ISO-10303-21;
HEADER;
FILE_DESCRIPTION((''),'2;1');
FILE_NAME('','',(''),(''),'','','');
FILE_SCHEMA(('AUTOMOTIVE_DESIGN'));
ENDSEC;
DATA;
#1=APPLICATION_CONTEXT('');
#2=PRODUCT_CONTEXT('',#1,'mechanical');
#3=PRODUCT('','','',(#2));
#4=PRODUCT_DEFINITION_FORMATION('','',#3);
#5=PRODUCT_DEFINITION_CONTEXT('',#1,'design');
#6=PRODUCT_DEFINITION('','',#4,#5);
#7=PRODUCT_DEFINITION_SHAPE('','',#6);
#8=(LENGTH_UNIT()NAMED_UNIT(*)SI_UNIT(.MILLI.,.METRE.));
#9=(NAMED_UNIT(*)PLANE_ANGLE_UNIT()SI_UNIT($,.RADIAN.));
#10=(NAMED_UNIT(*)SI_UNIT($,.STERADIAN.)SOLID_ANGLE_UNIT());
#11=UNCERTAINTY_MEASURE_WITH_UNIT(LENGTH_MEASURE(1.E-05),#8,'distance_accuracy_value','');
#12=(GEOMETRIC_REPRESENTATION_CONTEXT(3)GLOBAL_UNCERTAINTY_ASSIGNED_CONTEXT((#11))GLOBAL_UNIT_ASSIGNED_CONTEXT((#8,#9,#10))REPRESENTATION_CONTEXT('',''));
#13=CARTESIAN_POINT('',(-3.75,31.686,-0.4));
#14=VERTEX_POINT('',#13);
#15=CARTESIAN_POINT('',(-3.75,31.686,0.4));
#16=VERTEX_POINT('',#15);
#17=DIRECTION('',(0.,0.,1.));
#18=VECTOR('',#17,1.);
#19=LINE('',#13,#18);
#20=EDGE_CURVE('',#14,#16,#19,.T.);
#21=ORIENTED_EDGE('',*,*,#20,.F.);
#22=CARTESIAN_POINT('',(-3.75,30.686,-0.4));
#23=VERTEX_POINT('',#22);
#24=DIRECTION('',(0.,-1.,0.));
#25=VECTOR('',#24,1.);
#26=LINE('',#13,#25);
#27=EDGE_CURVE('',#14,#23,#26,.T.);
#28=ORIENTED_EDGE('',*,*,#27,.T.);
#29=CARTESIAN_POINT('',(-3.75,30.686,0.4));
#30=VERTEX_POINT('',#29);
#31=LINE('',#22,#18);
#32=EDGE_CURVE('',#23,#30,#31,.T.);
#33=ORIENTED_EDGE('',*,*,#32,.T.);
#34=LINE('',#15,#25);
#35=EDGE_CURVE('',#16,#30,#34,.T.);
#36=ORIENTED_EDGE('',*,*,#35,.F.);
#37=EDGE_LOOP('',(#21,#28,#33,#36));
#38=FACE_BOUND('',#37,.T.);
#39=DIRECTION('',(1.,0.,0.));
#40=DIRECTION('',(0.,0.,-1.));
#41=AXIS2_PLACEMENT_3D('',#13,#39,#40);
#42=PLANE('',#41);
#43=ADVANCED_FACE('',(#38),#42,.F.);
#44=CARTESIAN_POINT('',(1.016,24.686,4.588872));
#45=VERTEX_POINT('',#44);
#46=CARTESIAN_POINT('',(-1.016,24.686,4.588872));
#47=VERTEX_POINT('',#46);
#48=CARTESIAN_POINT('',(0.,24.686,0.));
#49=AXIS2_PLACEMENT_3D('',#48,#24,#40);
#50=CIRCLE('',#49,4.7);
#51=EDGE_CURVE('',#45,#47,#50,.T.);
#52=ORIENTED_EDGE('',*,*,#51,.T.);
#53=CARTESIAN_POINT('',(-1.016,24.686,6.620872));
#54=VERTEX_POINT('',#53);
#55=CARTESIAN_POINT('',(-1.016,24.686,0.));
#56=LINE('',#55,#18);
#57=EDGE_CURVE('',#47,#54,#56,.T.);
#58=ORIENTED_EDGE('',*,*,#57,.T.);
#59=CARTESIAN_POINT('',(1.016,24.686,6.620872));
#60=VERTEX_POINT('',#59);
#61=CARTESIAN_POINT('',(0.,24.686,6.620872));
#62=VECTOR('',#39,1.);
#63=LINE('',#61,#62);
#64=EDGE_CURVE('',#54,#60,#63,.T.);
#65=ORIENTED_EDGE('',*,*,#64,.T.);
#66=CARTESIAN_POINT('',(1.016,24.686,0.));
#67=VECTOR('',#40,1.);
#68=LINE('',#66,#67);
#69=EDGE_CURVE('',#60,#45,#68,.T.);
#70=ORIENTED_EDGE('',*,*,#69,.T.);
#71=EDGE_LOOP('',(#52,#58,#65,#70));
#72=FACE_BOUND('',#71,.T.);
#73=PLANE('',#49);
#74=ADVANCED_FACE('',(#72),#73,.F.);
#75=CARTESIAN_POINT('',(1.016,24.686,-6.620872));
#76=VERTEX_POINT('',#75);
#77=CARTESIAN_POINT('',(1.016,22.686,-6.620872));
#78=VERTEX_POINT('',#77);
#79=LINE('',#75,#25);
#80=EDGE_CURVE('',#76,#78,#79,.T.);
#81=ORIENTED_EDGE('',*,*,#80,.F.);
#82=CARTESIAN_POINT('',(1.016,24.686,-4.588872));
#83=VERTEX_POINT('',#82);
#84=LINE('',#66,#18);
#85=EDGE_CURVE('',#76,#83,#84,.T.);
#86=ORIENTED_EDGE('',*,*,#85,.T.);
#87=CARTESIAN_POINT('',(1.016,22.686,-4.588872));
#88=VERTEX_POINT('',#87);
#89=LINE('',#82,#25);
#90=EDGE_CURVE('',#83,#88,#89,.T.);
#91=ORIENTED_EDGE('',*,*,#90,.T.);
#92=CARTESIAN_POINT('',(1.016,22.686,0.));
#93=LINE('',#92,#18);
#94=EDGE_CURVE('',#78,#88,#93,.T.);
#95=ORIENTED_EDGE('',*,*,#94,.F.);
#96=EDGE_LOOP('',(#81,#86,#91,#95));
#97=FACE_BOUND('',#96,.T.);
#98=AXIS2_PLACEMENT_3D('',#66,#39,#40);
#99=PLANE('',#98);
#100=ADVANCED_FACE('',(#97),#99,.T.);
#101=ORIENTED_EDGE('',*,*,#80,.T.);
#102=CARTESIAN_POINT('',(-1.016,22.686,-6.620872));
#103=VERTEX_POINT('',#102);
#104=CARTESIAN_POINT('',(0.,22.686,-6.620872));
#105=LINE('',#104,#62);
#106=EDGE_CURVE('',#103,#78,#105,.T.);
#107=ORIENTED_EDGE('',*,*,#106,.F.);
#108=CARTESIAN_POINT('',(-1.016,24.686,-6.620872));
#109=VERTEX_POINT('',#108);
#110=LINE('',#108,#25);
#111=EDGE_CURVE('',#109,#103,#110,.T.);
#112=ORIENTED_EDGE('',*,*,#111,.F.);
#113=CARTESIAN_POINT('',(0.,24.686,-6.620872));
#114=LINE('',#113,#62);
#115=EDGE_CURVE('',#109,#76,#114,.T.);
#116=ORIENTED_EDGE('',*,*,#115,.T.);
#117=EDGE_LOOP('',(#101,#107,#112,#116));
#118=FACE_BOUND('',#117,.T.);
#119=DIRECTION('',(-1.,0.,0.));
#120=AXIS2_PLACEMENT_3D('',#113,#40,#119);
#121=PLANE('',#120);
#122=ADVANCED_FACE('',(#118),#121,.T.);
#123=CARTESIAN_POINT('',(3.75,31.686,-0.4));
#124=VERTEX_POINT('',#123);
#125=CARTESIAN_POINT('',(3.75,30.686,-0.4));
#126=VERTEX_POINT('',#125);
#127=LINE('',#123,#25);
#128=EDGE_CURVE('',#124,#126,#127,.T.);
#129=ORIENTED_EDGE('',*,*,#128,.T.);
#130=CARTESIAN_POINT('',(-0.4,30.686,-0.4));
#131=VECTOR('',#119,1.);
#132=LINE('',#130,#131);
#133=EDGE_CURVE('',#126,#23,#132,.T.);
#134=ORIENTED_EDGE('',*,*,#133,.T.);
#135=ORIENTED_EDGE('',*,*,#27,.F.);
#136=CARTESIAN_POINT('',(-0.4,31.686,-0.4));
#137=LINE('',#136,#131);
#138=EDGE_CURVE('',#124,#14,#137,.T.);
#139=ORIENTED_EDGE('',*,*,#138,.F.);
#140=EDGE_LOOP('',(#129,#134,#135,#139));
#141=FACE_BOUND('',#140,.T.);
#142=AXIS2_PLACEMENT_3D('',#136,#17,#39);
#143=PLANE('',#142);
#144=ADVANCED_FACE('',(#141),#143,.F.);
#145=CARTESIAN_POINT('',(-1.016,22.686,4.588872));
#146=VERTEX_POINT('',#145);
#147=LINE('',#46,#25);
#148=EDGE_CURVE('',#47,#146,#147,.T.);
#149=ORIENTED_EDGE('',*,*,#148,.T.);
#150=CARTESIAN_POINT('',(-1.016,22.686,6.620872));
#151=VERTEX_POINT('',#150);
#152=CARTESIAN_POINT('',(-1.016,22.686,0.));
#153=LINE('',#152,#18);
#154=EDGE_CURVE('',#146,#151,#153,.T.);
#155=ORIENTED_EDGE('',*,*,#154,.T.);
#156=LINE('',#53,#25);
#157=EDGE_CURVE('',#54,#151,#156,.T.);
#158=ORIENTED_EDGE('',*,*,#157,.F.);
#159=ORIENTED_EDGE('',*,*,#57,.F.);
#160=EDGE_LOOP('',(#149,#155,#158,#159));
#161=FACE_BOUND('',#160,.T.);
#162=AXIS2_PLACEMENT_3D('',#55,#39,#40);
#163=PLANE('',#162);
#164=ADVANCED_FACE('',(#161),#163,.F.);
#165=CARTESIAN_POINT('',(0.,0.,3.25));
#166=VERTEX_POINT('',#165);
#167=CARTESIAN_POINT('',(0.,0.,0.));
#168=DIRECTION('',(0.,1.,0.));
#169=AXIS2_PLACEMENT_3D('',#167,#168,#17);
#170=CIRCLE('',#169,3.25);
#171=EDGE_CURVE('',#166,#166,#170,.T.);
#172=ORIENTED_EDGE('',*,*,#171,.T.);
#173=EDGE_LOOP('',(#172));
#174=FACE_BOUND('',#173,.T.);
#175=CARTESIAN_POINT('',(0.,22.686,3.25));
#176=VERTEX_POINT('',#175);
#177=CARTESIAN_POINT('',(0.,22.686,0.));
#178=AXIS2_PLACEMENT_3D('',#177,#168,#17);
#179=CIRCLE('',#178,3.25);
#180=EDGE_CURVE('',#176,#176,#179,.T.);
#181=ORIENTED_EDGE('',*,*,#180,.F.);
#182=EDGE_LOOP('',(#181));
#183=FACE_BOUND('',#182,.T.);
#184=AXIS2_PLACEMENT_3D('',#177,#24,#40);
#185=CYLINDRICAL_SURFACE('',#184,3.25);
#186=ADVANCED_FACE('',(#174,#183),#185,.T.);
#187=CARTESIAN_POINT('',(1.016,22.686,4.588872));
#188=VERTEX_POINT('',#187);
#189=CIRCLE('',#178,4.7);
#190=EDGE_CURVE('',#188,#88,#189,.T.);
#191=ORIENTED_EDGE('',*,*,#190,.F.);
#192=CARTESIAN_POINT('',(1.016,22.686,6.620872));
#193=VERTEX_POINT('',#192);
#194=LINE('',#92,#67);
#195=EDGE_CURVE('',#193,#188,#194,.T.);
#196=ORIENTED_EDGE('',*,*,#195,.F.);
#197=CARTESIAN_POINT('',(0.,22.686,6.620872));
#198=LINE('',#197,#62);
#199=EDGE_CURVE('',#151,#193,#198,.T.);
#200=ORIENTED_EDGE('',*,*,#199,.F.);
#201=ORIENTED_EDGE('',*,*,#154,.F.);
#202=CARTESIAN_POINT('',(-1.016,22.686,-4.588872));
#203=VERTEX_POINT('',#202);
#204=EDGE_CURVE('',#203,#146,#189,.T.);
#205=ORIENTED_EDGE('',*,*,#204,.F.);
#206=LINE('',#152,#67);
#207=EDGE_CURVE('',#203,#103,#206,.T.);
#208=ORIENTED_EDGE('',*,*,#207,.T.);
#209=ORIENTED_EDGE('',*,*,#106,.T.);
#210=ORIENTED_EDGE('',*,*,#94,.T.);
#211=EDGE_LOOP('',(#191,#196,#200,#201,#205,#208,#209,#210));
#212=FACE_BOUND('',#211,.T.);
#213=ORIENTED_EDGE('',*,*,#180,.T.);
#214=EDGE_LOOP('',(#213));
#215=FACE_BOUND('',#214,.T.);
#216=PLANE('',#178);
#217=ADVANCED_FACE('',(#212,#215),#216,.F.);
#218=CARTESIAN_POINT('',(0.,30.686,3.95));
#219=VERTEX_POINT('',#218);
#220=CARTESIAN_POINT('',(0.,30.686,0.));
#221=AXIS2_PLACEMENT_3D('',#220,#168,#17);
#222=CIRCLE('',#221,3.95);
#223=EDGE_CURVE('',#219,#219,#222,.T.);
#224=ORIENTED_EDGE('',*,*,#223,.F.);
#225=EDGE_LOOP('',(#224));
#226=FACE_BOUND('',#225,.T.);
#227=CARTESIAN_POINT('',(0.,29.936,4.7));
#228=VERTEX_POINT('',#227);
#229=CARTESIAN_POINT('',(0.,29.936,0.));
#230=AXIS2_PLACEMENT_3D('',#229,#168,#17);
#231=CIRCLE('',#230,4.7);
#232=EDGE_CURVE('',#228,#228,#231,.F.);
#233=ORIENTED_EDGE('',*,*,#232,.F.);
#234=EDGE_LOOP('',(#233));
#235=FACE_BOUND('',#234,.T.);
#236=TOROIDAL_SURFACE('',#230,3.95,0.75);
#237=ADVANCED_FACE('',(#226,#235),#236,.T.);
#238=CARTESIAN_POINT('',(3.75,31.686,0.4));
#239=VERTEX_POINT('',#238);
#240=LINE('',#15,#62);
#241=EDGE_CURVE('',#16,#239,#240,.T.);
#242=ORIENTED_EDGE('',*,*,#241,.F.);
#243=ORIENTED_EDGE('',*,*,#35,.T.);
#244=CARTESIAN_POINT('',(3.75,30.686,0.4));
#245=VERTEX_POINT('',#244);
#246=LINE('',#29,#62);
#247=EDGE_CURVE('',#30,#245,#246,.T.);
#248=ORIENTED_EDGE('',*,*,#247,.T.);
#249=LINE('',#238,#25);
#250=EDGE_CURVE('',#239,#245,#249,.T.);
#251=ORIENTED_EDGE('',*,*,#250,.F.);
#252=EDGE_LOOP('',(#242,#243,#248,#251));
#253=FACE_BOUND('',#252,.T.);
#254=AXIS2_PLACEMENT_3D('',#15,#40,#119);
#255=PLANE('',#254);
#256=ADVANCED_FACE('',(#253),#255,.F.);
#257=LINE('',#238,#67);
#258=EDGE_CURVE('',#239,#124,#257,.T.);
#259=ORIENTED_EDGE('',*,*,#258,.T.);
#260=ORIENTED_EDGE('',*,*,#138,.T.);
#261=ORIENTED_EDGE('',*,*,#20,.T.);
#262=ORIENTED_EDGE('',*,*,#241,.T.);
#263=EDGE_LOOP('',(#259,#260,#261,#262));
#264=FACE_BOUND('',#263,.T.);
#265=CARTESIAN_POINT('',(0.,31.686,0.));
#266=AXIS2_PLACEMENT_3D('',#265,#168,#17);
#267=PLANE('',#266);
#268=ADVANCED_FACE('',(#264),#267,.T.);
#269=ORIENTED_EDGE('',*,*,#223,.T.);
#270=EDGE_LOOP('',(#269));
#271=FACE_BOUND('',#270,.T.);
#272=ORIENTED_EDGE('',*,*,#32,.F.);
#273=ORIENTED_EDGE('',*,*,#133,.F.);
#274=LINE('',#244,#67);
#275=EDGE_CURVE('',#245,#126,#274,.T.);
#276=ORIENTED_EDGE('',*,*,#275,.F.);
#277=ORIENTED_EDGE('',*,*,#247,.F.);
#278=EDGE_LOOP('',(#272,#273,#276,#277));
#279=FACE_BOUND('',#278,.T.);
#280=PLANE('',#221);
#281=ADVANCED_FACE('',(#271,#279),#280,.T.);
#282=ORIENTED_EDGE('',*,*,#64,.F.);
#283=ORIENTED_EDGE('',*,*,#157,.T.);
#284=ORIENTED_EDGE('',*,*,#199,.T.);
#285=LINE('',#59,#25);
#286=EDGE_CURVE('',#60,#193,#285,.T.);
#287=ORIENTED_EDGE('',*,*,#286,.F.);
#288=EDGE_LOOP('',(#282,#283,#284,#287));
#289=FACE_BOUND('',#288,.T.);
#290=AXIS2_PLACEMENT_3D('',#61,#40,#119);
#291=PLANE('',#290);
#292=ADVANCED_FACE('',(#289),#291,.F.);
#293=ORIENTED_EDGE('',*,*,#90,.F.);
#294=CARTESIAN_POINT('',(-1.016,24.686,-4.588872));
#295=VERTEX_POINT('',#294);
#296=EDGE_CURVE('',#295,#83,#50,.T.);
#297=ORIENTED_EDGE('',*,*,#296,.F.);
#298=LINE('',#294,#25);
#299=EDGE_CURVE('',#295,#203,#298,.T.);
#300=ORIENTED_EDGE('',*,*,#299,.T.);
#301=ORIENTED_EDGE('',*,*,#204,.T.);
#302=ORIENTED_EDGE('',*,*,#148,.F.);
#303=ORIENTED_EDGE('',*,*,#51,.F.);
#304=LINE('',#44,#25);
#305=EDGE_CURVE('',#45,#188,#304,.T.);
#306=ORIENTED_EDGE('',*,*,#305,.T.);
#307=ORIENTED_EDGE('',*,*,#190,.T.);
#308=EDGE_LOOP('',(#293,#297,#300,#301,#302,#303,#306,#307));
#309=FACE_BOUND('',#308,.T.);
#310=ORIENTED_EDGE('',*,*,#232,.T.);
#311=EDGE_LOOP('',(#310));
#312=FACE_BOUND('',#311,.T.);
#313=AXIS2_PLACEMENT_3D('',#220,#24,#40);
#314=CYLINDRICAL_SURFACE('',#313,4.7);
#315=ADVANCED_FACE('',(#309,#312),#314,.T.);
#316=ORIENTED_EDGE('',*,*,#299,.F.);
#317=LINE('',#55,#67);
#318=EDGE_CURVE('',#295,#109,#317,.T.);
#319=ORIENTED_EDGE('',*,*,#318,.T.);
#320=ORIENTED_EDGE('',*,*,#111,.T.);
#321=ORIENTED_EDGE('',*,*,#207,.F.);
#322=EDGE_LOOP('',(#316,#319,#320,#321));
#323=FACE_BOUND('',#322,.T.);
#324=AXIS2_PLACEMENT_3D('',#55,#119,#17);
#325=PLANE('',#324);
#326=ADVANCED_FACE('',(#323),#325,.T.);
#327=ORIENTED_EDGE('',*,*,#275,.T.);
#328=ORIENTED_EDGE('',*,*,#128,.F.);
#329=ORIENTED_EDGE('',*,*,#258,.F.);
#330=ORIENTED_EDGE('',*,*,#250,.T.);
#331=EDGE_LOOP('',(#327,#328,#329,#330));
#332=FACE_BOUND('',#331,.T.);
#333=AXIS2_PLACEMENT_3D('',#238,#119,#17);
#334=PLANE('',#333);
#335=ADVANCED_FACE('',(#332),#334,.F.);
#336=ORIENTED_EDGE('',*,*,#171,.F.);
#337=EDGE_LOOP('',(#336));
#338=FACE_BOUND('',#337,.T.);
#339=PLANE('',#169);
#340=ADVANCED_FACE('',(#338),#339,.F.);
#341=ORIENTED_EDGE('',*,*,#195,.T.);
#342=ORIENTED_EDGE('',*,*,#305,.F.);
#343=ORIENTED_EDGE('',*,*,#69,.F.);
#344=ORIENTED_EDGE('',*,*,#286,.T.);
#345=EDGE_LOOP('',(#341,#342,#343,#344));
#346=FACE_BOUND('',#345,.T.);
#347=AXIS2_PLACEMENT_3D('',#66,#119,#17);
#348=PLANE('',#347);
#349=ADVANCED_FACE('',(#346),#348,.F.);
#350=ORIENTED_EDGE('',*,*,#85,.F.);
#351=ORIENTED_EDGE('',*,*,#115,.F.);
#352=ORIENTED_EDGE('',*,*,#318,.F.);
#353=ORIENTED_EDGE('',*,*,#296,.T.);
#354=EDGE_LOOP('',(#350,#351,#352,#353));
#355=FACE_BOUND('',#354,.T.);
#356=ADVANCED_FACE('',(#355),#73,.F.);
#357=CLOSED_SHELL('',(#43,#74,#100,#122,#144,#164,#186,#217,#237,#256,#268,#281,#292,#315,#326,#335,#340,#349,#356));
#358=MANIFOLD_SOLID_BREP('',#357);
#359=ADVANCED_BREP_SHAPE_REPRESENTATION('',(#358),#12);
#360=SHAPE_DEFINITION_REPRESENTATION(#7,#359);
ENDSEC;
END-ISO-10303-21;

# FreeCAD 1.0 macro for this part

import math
import FreeCAD as App
import Part
import Sketcher
from FreeCAD import Vector


def edges_at(feature, points):
    """Names of the edges that pass closest to the given points."""
    edges = feature.Shape.Edges
    near = lambda p: min(range(len(edges)), key=lambda i: edges[i].distToShape(Part.Vertex(*p))[0])
    return sorted({f"Edge{near(p) + 1}" for p in points})


def add_polygon(sketch, points):
    """Adds a closed chain of lines whose ends are joined by coincident constraints."""
    first, n = sketch.GeometryCount, len(points)
    for a, b in zip(points, points[1:] + points[:1]):
        sketch.addGeometry(Part.LineSegment(App.Vector(*a, 0), App.Vector(*b, 0)), False)
    for i in range(n):
        sketch.addConstraint(Sketcher.Constraint("Coincident", first + i, 2, first + (i + 1) % n, 1))

doc = App.newDocument("Part")
body = doc.addObject("PartDesign::Body", "Body")

# Sketch on XZ plane
sketch1 = body.newObject("Sketcher::SketchObject", "Sketch")
sketch1.AttachmentSupport = (doc.getObject("XZ_Plane"), [""])
sketch1.MapMode = "FlatFace"
sketch1.addGeometry(Part.Circle(Vector(0, 0, 0), Vector(0, 0, 1), 3.2), False)
sketch1.addConstraint(Sketcher.Constraint("Coincident", 0, 3, -1, 1))
sketch1.addConstraint(Sketcher.Constraint("Diameter", 0, 6.5))
pad1 = body.newObject("PartDesign::Pad", "Pad")
pad1.Profile = sketch1
pad1.Length = 22.686
pad1.Reversed = True

# Sketch on XZ plane
sketch2 = body.newObject("Sketcher::SketchObject", "Sketch001")
sketch2.AttachmentSupport = (doc.getObject("XZ_Plane"), [""])
sketch2.MapMode = "FlatFace"
sketch2.AttachmentOffset = App.Placement(Vector(0, 0, -22.686), App.Rotation())
sketch2.addGeometry(Part.Circle(Vector(0, 0, 0), Vector(0, 0, 1), 4.7), False)
sketch2.addConstraint(Sketcher.Constraint("Coincident", 0, 3, -1, 1))
sketch2.addConstraint(Sketcher.Constraint("Diameter", 0, 9.4))
pad2 = body.newObject("PartDesign::Pad", "Pad001")
pad2.Profile = sketch2
pad2.Length = 8
pad2.Reversed = True

# Sketch on XZ plane
sketch3 = body.newObject("Sketcher::SketchObject", "Sketch002")
sketch3.AttachmentSupport = (doc.getObject("XZ_Plane"), [""])
sketch3.MapMode = "FlatFace"
sketch3.AttachmentOffset = App.Placement(Vector(0, 0, -30.686), App.Rotation())
add_polygon(sketch3, [(0.4, -3.8), (-0.4, -3.8), (-0.4, -0.4), (-3.8, -0.4), (-3.8, 0.4), (-0.4, 0.4), (-0.4, 3.8), (0.4, 3.8), (0.4, 0.4), (3.8, 0.4), (3.8, -0.4), (0.4, -0.4)])  # lines 0-11
sketch3.addConstraint(Sketcher.Constraint("Horizontal", 0))
sketch3.addConstraint(Sketcher.Constraint("Vertical", 1))
sketch3.addConstraint(Sketcher.Constraint("Horizontal", 2))
sketch3.addConstraint(Sketcher.Constraint("Vertical", 3))
sketch3.addConstraint(Sketcher.Constraint("Horizontal", 4))
sketch3.addConstraint(Sketcher.Constraint("Vertical", 5))
sketch3.addConstraint(Sketcher.Constraint("Horizontal", 6))
sketch3.addConstraint(Sketcher.Constraint("Vertical", 7))
sketch3.addConstraint(Sketcher.Constraint("Horizontal", 8))
sketch3.addConstraint(Sketcher.Constraint("Vertical", 9))
sketch3.addConstraint(Sketcher.Constraint("Horizontal", 10))
sketch3.addConstraint(Sketcher.Constraint("Vertical", 11))
sketch3.addConstraint(Sketcher.Constraint("Symmetric", 0, 2, 6, 2, -1, 1))
sketch3.addConstraint(Sketcher.Constraint("Symmetric", 2, 2, 8, 2, -1, 1))
sketch3.addConstraint(Sketcher.Constraint("Symmetric", 4, 2, 10, 2, -1, 1))
sketch3.addConstraint(Sketcher.Constraint("Symmetric", 4, 2, 7, 2, -2))
sketch3.addConstraint(Sketcher.Constraint("Equal", 10, 1))
sketch3.addConstraint(Sketcher.Constraint("Equal", 6, 3))
sketch3.addConstraint(Sketcher.Constraint("DistanceX", 0, 2, 0, 1, 0.8))
sketch3.addConstraint(Sketcher.Constraint("DistanceX", 2, 2, 2, 1, 3.35))
pad3 = body.newObject("PartDesign::Pad", "Pad002")
pad3.Profile = sketch3
pad3.Length = 1
pad3.Reversed = True
doc.recompute()

fillet = body.newObject("PartDesign::Fillet", "Fillet")
fillet.Base = (pad3, edges_at(pad3, [(-4.7, 30.686, 0)]))
fillet.Radius = 0.75

# Sketch on XZ plane
sketch4 = body.newObject("Sketcher::SketchObject", "Sketch003")
sketch4.AttachmentSupport = (doc.getObject("XZ_Plane"), [""])
sketch4.MapMode = "FlatFace"
sketch4.AttachmentOffset = App.Placement(Vector(0, 0, -30.686), App.Rotation())
add_polygon(sketch4, [(-0.4, -3.8), (-0.4, -0.4), (0.4, -0.4), (0.4, -3.8)])  # lines 0-3
add_polygon(sketch4, [(-0.4, 0.4), (-0.4, 3.8), (0.4, 3.8), (0.4, 0.4)])  # lines 4-7
sketch4.addConstraint(Sketcher.Constraint("Vertical", 0))
sketch4.addConstraint(Sketcher.Constraint("Horizontal", 1))
sketch4.addConstraint(Sketcher.Constraint("Vertical", 2))
sketch4.addConstraint(Sketcher.Constraint("Horizontal", 3))
sketch4.addConstraint(Sketcher.Constraint("Vertical", 4))
sketch4.addConstraint(Sketcher.Constraint("Horizontal", 5))
sketch4.addConstraint(Sketcher.Constraint("Vertical", 6))
sketch4.addConstraint(Sketcher.Constraint("Horizontal", 7))
sketch4.addConstraint(Sketcher.Constraint("Symmetric", 2, 2, 4, 2, -1, 1))
sketch4.addConstraint(Sketcher.Constraint("Symmetric", 0, 2, 6, 2, -1, 1))
sketch4.addConstraint(Sketcher.Constraint("Vertical", 3, 2, 4, 2))
sketch4.addConstraint(Sketcher.Constraint("DistanceX", 1, 1, 1, 2, 0.8))
sketch4.addConstraint(Sketcher.Constraint("DistanceY", 0, 1, 0, 2, 3.35))
sketch4.addConstraint(Sketcher.Constraint("DistanceY", 0, 2, -1, 1, 0.4))
pocket1 = body.newObject("PartDesign::Pocket", "Pocket")
pocket1.Profile = sketch4
pocket1.Length = 1

# Sketch on XZ plane
sketch5 = body.newObject("Sketcher::SketchObject", "Sketch004")
sketch5.AttachmentSupport = (doc.getObject("XZ_Plane"), [""])
sketch5.MapMode = "FlatFace"
sketch5.AttachmentOffset = App.Placement(Vector(0, 0, -22.686), App.Rotation())
sketch5.addGeometry(Part.LineSegment(Vector(-1, 6.6, 0), Vector(-1, 4.6, 0)), False)
sketch5.addGeometry(Part.ArcOfCircle(Part.Circle(Vector(0, 0, 0), Vector(0, 0, 1), 4.7), math.radians(78), math.radians(102)), False)
sketch5.addGeometry(Part.LineSegment(Vector(1, 4.6, 0), Vector(1, 6.6, 0)), False)
sketch5.addGeometry(Part.LineSegment(Vector(1, 6.6, 0), Vector(-1, 6.6, 0)), False)
sketch5.addGeometry(Part.ArcOfCircle(Part.Circle(Vector(0, 0, 0), Vector(0, 0, 1), 4.7), math.radians(-102), math.radians(-78)), False)
sketch5.addGeometry(Part.LineSegment(Vector(-1, -4.6, 0), Vector(-1, -6.6, 0)), False)
sketch5.addGeometry(Part.LineSegment(Vector(-1, -6.6, 0), Vector(1, -6.6, 0)), False)
sketch5.addGeometry(Part.LineSegment(Vector(1, -6.6, 0), Vector(1, -4.6, 0)), False)
sketch5.addConstraint(Sketcher.Constraint("Coincident", 0, 2, 1, 2))
sketch5.addConstraint(Sketcher.Constraint("Coincident", 1, 1, 2, 1))
sketch5.addConstraint(Sketcher.Constraint("Coincident", 2, 2, 3, 1))
sketch5.addConstraint(Sketcher.Constraint("Coincident", 3, 2, 0, 1))
sketch5.addConstraint(Sketcher.Constraint("Coincident", 4, 1, 5, 1))
sketch5.addConstraint(Sketcher.Constraint("Coincident", 5, 2, 6, 1))
sketch5.addConstraint(Sketcher.Constraint("Coincident", 6, 2, 7, 1))
sketch5.addConstraint(Sketcher.Constraint("Coincident", 7, 2, 4, 2))
sketch5.addConstraint(Sketcher.Constraint("Vertical", 0))
sketch5.addConstraint(Sketcher.Constraint("Vertical", 2))
sketch5.addConstraint(Sketcher.Constraint("Horizontal", 3))
sketch5.addConstraint(Sketcher.Constraint("Vertical", 5))
sketch5.addConstraint(Sketcher.Constraint("Horizontal", 6))
sketch5.addConstraint(Sketcher.Constraint("Vertical", 7))
sketch5.addConstraint(Sketcher.Constraint("Coincident", 1, 3, -1, 1))
sketch5.addConstraint(Sketcher.Constraint("Coincident", 4, 3, -1, 1))
sketch5.addConstraint(Sketcher.Constraint("Equal", 1, 4))
sketch5.addConstraint(Sketcher.Constraint("Symmetric", 2, 2, 5, 2, -1, 1))
sketch5.addConstraint(Sketcher.Constraint("Horizontal", 0, 2, 1, 1))
sketch5.addConstraint(Sketcher.Constraint("Horizontal", 4, 1, 7, 2))
sketch5.addConstraint(Sketcher.Constraint("Equal", 6, 0))
sketch5.addConstraint(Sketcher.Constraint("Radius", 1, 4.7))
sketch5.addConstraint(Sketcher.Constraint("DistanceX", 3, 2, 3, 1, 2.032))
pad4 = body.newObject("PartDesign::Pad", "Pad003")
pad4.Profile = sketch5
pad4.Length = 2
pad4.Reversed = True

doc.recompute()
